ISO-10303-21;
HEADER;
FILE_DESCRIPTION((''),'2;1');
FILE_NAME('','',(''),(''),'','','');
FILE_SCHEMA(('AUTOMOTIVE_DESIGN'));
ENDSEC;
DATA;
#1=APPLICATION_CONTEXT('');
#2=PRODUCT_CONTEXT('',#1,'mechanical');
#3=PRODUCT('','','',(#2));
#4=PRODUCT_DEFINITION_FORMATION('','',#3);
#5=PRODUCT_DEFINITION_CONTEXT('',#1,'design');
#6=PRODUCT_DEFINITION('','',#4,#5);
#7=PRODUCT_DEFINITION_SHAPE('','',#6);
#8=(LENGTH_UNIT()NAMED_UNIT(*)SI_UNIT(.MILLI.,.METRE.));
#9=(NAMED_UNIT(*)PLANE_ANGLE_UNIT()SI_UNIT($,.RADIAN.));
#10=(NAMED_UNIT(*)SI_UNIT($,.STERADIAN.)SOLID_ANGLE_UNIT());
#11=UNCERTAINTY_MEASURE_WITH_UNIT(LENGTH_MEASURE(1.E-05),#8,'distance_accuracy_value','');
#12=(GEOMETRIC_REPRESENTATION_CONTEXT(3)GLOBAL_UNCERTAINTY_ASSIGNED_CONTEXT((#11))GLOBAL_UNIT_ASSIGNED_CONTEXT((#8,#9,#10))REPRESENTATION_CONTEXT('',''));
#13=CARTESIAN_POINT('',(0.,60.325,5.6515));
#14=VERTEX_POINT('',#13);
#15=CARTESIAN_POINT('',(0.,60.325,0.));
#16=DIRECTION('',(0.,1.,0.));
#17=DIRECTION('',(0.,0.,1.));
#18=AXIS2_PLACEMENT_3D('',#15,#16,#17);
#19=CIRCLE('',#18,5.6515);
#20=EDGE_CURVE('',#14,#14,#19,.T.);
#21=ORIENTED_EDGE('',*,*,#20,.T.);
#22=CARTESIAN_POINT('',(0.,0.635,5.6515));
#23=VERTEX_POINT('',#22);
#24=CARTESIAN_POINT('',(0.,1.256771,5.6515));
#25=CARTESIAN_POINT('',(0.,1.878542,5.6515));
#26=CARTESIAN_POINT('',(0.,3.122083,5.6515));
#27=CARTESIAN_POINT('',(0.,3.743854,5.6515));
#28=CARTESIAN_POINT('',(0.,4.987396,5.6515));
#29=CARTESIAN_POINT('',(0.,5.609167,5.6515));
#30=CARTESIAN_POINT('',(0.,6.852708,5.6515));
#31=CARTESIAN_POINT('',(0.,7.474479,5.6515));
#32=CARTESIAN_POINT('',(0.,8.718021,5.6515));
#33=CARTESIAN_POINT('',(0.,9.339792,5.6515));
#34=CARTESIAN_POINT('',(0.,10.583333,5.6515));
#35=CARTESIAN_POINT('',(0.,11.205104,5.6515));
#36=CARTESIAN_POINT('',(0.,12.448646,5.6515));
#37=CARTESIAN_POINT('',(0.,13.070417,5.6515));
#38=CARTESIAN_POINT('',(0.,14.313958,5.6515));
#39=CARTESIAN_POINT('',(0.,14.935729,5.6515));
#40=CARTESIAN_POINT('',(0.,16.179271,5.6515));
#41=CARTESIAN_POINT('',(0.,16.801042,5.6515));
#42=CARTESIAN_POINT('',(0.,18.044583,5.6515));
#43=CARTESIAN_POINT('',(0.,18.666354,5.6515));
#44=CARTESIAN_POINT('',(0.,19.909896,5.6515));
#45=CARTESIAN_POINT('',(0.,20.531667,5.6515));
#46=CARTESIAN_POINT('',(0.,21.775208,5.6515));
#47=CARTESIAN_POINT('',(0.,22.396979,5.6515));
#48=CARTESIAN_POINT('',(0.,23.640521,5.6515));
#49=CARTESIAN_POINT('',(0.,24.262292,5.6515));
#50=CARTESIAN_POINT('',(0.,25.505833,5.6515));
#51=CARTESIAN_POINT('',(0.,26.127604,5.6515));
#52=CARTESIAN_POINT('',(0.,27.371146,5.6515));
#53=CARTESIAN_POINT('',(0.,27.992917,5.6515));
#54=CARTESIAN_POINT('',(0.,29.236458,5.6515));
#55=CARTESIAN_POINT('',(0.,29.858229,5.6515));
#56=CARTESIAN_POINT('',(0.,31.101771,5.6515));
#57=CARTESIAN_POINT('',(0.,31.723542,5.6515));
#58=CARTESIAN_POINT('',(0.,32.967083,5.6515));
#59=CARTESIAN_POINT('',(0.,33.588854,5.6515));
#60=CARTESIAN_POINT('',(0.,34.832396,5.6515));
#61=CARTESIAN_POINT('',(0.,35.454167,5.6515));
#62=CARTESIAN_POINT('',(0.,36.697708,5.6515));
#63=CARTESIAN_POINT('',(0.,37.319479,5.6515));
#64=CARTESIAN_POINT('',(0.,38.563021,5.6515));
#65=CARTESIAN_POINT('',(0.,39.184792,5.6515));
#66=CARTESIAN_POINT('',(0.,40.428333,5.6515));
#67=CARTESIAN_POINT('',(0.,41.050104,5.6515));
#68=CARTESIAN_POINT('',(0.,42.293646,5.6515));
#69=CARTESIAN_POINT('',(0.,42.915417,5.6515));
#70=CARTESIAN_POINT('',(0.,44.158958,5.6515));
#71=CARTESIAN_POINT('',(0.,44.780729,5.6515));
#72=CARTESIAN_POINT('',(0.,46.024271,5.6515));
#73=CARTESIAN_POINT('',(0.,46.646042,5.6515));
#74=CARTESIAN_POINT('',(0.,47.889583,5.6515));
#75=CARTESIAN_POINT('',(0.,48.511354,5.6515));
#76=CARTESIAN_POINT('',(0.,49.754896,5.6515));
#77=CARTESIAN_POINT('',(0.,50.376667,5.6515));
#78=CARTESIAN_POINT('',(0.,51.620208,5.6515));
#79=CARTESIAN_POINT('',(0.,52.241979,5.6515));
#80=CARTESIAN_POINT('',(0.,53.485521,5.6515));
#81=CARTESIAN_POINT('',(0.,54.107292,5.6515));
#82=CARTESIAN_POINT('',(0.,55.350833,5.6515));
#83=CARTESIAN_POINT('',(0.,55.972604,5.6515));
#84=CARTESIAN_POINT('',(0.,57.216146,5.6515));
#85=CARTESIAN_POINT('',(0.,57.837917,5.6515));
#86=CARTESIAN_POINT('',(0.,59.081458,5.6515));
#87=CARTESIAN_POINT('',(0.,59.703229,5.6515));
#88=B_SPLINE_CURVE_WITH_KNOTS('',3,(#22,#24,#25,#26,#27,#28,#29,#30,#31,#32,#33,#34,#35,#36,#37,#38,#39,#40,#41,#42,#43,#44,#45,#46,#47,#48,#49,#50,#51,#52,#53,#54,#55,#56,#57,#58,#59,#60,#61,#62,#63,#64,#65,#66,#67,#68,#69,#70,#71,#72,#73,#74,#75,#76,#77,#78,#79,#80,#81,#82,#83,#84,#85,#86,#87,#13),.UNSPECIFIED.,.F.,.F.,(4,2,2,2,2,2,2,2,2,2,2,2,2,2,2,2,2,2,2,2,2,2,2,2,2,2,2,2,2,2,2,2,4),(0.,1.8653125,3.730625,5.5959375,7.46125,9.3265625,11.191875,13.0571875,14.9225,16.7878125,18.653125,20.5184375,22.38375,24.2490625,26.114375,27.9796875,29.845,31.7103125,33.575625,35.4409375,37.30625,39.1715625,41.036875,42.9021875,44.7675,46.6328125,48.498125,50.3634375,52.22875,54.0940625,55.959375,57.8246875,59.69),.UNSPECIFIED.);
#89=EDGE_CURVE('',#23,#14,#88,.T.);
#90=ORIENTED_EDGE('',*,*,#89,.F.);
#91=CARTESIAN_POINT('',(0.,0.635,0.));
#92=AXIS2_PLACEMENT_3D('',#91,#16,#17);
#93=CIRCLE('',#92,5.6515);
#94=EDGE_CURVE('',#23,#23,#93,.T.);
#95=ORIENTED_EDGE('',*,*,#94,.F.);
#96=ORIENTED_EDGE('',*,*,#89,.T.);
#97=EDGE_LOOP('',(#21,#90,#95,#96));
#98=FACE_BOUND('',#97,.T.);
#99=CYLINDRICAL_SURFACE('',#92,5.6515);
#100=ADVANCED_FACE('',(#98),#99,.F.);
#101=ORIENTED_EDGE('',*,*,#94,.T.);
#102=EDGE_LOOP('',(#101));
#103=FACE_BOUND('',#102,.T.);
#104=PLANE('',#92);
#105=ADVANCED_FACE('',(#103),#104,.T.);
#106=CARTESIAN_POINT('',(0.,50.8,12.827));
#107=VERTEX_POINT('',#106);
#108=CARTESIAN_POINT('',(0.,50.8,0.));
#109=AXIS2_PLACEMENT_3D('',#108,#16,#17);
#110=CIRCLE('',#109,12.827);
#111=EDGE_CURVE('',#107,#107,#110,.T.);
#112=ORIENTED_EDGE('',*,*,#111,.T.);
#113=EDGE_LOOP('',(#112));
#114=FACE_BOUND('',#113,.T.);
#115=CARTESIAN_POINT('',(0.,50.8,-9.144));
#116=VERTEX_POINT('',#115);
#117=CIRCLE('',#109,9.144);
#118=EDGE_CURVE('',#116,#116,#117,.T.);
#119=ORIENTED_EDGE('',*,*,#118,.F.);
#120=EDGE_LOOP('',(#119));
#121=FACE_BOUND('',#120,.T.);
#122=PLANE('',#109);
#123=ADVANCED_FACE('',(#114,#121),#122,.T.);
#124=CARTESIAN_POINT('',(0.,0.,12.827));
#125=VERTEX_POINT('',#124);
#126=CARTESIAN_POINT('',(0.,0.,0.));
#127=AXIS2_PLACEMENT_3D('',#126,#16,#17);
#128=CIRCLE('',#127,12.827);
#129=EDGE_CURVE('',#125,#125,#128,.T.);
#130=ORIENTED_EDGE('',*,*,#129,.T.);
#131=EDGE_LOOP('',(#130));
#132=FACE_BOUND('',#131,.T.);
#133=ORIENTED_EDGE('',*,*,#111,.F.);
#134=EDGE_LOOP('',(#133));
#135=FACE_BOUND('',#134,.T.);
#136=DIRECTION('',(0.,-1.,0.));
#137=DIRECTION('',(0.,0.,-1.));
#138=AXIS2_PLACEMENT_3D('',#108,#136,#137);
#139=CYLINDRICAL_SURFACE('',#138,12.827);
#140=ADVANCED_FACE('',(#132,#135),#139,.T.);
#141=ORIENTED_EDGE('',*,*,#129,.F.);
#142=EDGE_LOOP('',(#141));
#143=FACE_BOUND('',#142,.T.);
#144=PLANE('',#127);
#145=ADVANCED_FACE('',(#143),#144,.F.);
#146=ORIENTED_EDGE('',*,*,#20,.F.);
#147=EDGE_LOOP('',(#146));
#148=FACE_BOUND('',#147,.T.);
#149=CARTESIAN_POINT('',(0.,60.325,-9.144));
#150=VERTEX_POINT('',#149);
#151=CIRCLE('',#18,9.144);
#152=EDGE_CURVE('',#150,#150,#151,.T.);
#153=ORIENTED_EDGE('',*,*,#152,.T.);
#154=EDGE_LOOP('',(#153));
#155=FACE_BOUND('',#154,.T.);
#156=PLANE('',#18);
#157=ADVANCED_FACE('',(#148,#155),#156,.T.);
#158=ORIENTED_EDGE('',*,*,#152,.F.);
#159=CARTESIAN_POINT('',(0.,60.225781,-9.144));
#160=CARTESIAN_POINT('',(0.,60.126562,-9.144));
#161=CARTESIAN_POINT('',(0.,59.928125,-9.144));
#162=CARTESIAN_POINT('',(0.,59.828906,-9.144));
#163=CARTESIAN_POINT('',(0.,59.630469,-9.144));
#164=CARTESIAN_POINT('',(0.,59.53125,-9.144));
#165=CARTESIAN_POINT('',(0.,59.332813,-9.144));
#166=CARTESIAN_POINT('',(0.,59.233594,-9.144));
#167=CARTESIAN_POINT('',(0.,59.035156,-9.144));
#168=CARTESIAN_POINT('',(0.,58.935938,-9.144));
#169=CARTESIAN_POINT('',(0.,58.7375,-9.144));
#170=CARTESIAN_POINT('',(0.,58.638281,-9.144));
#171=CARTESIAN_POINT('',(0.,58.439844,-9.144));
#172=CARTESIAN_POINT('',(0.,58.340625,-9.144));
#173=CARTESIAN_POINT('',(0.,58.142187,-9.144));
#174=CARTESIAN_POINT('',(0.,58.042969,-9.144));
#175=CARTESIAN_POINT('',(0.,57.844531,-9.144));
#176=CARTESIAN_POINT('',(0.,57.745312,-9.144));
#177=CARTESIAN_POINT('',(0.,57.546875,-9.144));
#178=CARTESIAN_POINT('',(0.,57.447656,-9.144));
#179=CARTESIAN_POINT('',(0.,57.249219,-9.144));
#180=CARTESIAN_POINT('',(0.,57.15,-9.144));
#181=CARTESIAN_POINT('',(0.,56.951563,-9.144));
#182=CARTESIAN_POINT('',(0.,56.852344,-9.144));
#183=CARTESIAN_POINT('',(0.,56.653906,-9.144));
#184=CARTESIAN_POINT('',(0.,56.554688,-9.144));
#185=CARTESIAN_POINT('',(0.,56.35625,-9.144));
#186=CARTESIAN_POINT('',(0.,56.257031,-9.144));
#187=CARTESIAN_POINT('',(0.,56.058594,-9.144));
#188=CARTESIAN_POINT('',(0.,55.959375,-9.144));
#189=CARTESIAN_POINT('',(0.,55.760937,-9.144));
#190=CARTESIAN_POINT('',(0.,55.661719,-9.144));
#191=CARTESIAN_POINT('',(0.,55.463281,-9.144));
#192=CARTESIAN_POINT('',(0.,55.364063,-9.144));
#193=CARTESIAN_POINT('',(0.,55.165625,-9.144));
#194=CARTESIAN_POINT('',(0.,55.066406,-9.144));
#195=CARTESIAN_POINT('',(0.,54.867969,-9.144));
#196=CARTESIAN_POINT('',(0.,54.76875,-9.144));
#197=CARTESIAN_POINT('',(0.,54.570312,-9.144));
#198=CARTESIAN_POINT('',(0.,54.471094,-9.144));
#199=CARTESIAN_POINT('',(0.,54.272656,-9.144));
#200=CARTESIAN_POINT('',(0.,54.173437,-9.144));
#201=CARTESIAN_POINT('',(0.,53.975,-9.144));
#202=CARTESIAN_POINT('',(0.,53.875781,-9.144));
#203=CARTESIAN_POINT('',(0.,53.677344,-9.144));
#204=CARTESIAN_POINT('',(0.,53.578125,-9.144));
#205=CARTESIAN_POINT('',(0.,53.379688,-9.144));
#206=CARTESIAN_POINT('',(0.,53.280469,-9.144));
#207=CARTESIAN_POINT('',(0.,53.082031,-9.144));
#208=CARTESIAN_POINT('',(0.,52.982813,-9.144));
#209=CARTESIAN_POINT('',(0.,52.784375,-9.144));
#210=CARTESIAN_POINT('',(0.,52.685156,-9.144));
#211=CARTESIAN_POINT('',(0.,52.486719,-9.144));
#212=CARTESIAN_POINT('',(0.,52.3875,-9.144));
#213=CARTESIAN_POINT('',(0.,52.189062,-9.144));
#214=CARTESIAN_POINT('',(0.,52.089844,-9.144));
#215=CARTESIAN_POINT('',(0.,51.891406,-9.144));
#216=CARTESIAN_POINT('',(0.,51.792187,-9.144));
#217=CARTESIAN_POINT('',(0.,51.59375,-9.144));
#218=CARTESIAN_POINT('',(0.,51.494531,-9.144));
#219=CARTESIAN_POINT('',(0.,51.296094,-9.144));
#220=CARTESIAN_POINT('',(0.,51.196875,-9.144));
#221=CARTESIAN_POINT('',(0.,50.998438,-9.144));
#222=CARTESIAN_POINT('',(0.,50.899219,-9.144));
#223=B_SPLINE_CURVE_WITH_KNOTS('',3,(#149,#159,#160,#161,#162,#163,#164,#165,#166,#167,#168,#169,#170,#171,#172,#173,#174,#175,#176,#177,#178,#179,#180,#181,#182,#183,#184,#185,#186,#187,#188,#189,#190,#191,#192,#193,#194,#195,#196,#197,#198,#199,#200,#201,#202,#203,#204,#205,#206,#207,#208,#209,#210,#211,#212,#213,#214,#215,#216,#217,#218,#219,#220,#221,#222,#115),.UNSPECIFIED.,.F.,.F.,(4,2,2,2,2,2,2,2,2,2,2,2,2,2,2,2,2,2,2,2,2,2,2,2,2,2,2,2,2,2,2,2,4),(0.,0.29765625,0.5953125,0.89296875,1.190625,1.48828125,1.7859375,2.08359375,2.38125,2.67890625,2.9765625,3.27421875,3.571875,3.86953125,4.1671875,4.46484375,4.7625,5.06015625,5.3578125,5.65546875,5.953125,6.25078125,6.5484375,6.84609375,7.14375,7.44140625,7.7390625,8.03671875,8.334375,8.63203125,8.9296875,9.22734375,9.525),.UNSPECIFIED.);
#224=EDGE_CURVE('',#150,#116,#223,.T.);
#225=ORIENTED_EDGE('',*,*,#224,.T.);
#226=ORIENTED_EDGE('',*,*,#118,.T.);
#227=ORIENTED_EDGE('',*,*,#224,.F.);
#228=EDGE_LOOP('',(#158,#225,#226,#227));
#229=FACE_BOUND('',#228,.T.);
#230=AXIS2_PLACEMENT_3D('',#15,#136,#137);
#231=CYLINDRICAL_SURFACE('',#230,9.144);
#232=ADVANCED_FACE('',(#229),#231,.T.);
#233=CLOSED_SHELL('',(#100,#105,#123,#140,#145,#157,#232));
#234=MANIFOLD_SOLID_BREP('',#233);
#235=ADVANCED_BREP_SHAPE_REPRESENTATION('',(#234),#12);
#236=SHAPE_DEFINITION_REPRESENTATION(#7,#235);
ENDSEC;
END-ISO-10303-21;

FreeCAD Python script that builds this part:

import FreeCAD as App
import Part
import Sketcher
Q = App.Units.Quantity

doc = App.newDocument("Part")
body = doc.addObject("PartDesign::Body", "Body")

# Sketch on XZ plane
sketch1 = body.newObject("Sketcher::SketchObject", "Sketch")
sketch1.AttachmentSupport = (doc.getObject("XZ_Plane"), [""])
sketch1.MapMode = "FlatFace"
sketch1.addGeometry(Part.Circle(App.Vector(0, 0, 0), App.Vector(0, 0, 1), 13), False)
sketch1.addConstraint(Sketcher.Constraint("Coincident", 0, 3, -1, 1))
sketch1.addConstraint(Sketcher.Constraint("Diameter", 0, Q("1.01 in")))
pad1 = body.newObject("PartDesign::Pad", "Pad")
pad1.Profile = sketch1
pad1.Length = Q("2 in")
pad1.Reversed = True

# Sketch on XZ plane
sketch2 = body.newObject("Sketcher::SketchObject", "Sketch001")
sketch2.AttachmentSupport = (doc.getObject("XZ_Plane"), [""])
sketch2.MapMode = "FlatFace"
sketch2.AttachmentOffset = App.Placement(App.Vector(0, 0, -2 * 25.4), App.Rotation())
sketch2.addGeometry(Part.Circle(App.Vector(0, 0, 0), App.Vector(0, 0, 1), 9), False)
sketch2.addConstraint(Sketcher.Constraint("Coincident", 0, 3, -1, 1))
sketch2.addConstraint(Sketcher.Constraint("Diameter", 0, Q("0.72 in")))
pad2 = body.newObject("PartDesign::Pad", "Pad001")
pad2.Profile = sketch2
pad2.Length = Q("0.375 in")
pad2.Reversed = True

# Sketch on XZ plane
sketch3 = body.newObject("Sketcher::SketchObject", "Sketch002")
sketch3.AttachmentSupport = (doc.getObject("XZ_Plane"), [""])
sketch3.MapMode = "FlatFace"
sketch3.AttachmentOffset = App.Placement(App.Vector(0, 0, -2.375 * 25.4), App.Rotation())
sketch3.addGeometry(Part.Circle(App.Vector(0, 0, 0), App.Vector(0, 0, 1), 6), False)
sketch3.addConstraint(Sketcher.Constraint("Coincident", 0, 3, -1, 1))
sketch3.addConstraint(Sketcher.Constraint("Diameter", 0, Q("0.445 in")))
pocket1 = body.newObject("PartDesign::Pocket", "Pocket")
pocket1.Profile = sketch3
pocket1.Length = Q("2.35 in")
pocket1.Reversed = True

doc.recompute()
